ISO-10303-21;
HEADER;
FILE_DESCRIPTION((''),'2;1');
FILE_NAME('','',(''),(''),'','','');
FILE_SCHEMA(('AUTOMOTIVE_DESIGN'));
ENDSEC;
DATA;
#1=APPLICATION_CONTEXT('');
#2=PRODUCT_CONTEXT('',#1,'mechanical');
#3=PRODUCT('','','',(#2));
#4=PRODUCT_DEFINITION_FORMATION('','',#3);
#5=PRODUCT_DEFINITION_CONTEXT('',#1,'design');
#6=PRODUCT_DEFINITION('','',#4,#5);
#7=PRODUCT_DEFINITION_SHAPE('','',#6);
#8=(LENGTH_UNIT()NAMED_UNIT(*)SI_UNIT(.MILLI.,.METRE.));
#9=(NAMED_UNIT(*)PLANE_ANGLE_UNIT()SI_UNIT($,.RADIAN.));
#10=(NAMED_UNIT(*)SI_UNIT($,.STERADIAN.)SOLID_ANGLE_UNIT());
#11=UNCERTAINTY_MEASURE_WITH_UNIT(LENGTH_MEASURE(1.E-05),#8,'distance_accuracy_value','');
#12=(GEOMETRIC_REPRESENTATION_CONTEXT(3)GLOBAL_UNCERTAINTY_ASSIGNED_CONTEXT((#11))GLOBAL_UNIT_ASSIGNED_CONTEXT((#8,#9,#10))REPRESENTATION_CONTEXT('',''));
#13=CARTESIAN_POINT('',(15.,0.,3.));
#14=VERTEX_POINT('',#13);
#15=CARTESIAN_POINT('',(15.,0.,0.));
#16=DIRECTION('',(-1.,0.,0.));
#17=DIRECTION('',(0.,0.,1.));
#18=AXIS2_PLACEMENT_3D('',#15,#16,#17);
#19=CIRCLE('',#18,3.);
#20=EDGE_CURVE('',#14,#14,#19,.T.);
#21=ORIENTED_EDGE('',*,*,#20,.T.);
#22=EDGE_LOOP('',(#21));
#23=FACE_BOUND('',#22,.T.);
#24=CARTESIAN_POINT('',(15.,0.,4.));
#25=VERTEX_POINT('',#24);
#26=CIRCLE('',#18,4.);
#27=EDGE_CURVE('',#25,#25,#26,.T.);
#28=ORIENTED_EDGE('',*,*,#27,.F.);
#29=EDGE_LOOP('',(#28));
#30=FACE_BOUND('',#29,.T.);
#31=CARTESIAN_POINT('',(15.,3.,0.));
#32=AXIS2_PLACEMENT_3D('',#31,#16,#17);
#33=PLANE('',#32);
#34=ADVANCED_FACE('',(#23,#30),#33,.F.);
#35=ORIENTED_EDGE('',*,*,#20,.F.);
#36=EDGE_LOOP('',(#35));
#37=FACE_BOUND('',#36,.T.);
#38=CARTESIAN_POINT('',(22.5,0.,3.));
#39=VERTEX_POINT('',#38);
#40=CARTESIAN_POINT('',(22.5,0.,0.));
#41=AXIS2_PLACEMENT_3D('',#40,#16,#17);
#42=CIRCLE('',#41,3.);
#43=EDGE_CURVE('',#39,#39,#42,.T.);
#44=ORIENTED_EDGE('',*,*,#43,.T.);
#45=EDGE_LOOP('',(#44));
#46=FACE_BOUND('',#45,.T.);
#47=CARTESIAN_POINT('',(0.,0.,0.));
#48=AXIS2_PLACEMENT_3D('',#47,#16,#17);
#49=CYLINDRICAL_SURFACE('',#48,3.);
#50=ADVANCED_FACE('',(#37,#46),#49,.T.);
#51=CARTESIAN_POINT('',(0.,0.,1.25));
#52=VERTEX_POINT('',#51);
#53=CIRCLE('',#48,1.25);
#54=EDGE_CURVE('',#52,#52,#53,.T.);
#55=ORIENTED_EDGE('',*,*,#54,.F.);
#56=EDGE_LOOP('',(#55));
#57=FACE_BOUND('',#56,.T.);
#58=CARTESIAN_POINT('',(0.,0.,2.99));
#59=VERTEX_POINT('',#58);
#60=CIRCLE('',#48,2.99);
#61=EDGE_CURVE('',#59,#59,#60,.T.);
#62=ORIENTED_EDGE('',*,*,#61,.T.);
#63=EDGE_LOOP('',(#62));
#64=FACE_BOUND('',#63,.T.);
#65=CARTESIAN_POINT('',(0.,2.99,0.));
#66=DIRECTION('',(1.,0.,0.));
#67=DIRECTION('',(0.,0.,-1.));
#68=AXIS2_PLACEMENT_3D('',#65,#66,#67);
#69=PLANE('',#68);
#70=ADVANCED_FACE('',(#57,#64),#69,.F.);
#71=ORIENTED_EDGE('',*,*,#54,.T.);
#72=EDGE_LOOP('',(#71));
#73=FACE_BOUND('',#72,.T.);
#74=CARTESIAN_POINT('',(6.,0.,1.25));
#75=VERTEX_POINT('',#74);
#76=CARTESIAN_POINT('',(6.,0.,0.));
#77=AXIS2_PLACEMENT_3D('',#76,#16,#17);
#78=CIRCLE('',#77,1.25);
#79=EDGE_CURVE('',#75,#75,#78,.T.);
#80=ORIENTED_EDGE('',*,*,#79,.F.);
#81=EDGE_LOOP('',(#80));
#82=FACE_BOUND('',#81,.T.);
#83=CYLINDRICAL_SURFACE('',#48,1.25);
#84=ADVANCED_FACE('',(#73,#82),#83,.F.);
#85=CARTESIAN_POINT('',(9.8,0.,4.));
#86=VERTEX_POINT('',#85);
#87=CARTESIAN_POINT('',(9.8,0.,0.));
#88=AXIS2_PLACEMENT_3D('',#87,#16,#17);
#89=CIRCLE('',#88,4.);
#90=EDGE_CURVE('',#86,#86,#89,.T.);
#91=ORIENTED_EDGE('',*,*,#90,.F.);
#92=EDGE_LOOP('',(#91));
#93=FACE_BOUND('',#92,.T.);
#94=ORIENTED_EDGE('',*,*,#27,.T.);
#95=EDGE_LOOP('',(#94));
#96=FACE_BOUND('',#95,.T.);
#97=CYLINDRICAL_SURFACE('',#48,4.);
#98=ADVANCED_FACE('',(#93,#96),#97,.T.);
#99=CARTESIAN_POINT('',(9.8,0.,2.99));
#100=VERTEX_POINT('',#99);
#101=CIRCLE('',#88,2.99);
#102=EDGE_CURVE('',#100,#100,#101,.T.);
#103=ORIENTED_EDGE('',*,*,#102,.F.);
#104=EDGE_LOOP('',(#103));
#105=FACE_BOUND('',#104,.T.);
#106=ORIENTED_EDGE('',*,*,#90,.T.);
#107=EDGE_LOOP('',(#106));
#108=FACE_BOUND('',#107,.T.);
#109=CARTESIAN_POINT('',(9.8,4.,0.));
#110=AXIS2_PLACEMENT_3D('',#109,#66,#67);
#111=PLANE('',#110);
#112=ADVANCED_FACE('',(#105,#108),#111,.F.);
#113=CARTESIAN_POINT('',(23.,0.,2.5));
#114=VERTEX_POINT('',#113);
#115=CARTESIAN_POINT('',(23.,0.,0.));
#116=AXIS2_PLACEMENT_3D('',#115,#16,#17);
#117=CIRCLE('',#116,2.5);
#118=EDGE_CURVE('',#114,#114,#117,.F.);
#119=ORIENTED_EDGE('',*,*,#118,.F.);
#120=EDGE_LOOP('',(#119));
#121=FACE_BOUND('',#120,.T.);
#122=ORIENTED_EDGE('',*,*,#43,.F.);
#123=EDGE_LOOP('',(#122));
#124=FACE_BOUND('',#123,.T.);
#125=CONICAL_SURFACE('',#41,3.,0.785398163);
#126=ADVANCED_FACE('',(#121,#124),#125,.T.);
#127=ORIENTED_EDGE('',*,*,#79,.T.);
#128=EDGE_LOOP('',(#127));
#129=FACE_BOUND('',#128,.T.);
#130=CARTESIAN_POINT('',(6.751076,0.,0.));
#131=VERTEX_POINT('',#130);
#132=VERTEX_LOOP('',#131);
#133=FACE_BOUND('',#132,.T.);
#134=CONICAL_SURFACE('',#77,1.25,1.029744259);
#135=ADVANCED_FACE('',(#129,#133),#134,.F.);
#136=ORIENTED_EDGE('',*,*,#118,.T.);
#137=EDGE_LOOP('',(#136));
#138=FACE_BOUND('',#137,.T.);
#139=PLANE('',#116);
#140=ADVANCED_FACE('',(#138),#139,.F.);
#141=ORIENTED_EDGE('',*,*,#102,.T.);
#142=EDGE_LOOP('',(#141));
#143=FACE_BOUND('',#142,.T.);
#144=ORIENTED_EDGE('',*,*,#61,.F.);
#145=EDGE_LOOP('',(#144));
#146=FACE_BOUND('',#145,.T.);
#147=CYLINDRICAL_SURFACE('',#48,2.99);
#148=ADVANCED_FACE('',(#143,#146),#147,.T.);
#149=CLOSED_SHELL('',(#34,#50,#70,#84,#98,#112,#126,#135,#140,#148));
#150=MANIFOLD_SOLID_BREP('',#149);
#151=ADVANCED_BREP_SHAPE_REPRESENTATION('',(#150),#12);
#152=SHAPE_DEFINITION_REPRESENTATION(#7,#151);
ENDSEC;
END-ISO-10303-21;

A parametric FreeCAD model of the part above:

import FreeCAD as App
import Part
import Sketcher
from FreeCAD import Vector


def edges_at(feature, points):
    """Names of the edges that pass closest to the given points."""
    edges = feature.Shape.Edges
    near = lambda p: min(range(len(edges)), key=lambda i: edges[i].distToShape(Part.Vertex(*p))[0])
    return sorted({f"Edge{near(p) + 1}" for p in points})

doc = App.newDocument("Part")
body = doc.addObject("PartDesign::Body", "Body")

sketch1 = body.newObject("Sketcher::SketchObject", "Sketch")
sketch1.AttachmentSupport = (doc.getObject("XY_Plane"), [""])
sketch1.MapMode = "FlatFace"
sketch1.addGeometry(Part.LineSegment(Vector(0, 0, 0), Vector(23, 0, 0)), False)
sketch1.addGeometry(Part.LineSegment(Vector(23, 0, 0), Vector(23, 3, 0)), False)
sketch1.addGeometry(Part.LineSegment(Vector(23, 3, 0), Vector(15, 3, 0)), False)
sketch1.addGeometry(Part.LineSegment(Vector(15, 3, 0), Vector(15, 4, 0)), False)
sketch1.addGeometry(Part.LineSegment(Vector(15, 4, 0), Vector(9.8, 4, 0)), False)
sketch1.addGeometry(Part.LineSegment(Vector(9.8, 4, 0), Vector(9.8, 3, 0)), False)
sketch1.addGeometry(Part.LineSegment(Vector(9.8, 3, 0), Vector(0, 3, 0)), False)
sketch1.addGeometry(Part.LineSegment(Vector(0, 3, 0), Vector(0, 0, 0)), False)
sketch1.addConstraint(Sketcher.Constraint("Coincident", 0, 2, 1, 1))
sketch1.addConstraint(Sketcher.Constraint("Coincident", 1, 2, 2, 1))
sketch1.addConstraint(Sketcher.Constraint("Coincident", 2, 2, 3, 1))
sketch1.addConstraint(Sketcher.Constraint("Coincident", 3, 2, 4, 1))
sketch1.addConstraint(Sketcher.Constraint("Coincident", 4, 2, 5, 1))
sketch1.addConstraint(Sketcher.Constraint("Coincident", 5, 2, 6, 1))
sketch1.addConstraint(Sketcher.Constraint("Coincident", 6, 2, 7, 1))
sketch1.addConstraint(Sketcher.Constraint("Coincident", 7, 2, 0, 1))
sketch1.addConstraint(Sketcher.Constraint("Horizontal", 0))
sketch1.addConstraint(Sketcher.Constraint("Vertical", 1))
sketch1.addConstraint(Sketcher.Constraint("Horizontal", 2))
sketch1.addConstraint(Sketcher.Constraint("Vertical", 3))
sketch1.addConstraint(Sketcher.Constraint("Horizontal", 4))
sketch1.addConstraint(Sketcher.Constraint("Vertical", 5))
sketch1.addConstraint(Sketcher.Constraint("Horizontal", 6))
sketch1.addConstraint(Sketcher.Constraint("Vertical", 7))
sketch1.addConstraint(Sketcher.Constraint("Coincident", 7, 2, -1, 1))
sketch1.addConstraint(Sketcher.Constraint("DistanceX", 0, 1, 0, 2, 23.0))
sketch1.addConstraint(Sketcher.Constraint("DistanceX", 2, 2, 2, 1, 8.0))
sketch1.addConstraint(Sketcher.Constraint("DistanceY", 1, 1, 1, 2, 3.0))
sketch1.addConstraint(Sketcher.Constraint("DistanceY", 3, 1, 3, 2, 1.0))
sketch1.addConstraint(Sketcher.Constraint("DistanceX", 4, 2, 4, 1, 5.2))
sketch1.addConstraint(Sketcher.Constraint("DistanceY", 5, 2, 5, 1, 1.01))
revolution = body.newObject("PartDesign::Revolution", "Revolution")
revolution.Profile = sketch1
revolution.ReferenceAxis = (sketch1, ["H_Axis"])
revolution.Angle = 360
doc.recompute()

chamfer = body.newObject("PartDesign::Chamfer", "Chamfer")
chamfer.Base = (revolution, edges_at(revolution, [(23, -3, 0)]))
chamfer.Size = 0.5

sketch2 = body.newObject("Sketcher::SketchObject", "Sketch001")
sketch2.AttachmentSupport = (doc.getObject("YZ_Plane"), [""])
sketch2.MapMode = "FlatFace"
sketch2.addGeometry(Part.Circle(Vector(0, 0, 0), Vector(0, 0, 1), 1.2), False)
sketch2.addConstraint(Sketcher.Constraint("Coincident", 0, 3, -1, 1))
sketch2.addConstraint(Sketcher.Constraint("Diameter", 0, 2.5))
doc.recompute()
hole = body.newObject("PartDesign::Hole", "Hole")
hole.Profile = sketch2
hole.ThreadType = "None"
hole.Diameter = 2.5
hole.DepthType = "Dimension"
hole.Depth = 6
hole.DrillPoint = "Angled"
hole.DrillPointAngle = 118
hole.Reversed = True

doc.recompute()
